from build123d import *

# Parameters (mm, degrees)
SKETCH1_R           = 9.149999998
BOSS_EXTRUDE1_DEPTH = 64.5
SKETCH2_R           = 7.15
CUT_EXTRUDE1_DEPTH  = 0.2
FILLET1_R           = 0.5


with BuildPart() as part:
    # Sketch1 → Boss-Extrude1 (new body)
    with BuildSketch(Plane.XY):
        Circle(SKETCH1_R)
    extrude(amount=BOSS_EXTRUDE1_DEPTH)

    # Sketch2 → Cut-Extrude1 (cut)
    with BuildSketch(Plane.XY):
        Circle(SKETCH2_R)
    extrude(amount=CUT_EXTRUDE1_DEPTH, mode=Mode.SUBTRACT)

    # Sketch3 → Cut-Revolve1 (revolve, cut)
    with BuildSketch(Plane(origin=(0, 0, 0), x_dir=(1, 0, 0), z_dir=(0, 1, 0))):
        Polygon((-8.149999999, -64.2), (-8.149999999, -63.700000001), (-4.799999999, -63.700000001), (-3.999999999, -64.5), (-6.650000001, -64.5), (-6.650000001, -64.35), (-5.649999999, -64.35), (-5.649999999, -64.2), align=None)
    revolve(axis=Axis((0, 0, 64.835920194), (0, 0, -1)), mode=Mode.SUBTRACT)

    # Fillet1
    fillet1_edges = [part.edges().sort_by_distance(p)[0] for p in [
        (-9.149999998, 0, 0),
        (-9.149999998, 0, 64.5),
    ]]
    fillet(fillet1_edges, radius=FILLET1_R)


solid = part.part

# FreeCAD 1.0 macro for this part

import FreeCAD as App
import Part
import Sketcher
from FreeCAD import Vector
Q = App.Units.Quantity


def edges_at(feature, points):
    """Names of the edges that pass closest to the given points."""
    edges = feature.Shape.Edges
    near = lambda p: min(range(len(edges)), key=lambda i: edges[i].distToShape(Part.Vertex(*p))[0])
    return sorted({f"Edge{near(p) + 1}" for p in points})

doc = App.newDocument("Part")
params = doc.addObject("Spreadsheet::Sheet", "Params")
for row, (alias, value) in enumerate([
    ("sketch1_diameter", "18.3 mm"),
    ("pad1_length", "64.5 mm"),
    ("sketch2_diameter", "14.3 mm"),
    ("pocket1_length", "0.2 mm"),
    ("sketch3_width", "1 mm"),
    ("sketch3_width2", "2.5 mm"),
    ("sketch3_height", "0.5 mm"),
    ("sketch3_width3", "2.65 mm"),
    ("sketch3_width4", "3.35 mm"),
    ("groove_angle", "360 deg"),
    ("fillet_radius", "0.5 mm"),
], start=1):
    params.set(f"A{row}", alias)
    params.set(f"B{row}", "=" + value)
    params.setAlias(f"B{row}", alias)

body = doc.addObject("PartDesign::Body", "Body")

# Sketch on XY plane
sketch1 = body.newObject("Sketcher::SketchObject", "Sketch")
sketch1.AttachmentSupport = (doc.getObject("XY_Plane"), [""])
sketch1.MapMode = "FlatFace"
sketch1.addGeometry(Part.Circle(Vector(0, 0, 0), Vector(0, 0, 1), 9), False)
sketch1.addConstraint([
    Sketcher.Constraint("Coincident", 0, 3, -1, 1),
    Sketcher.Constraint("Diameter", 0, Q("18.3 mm")),
])
sketch1.setExpression("Constraints[1]", "Params.sketch1_diameter")
pad1 = body.newObject("PartDesign::Pad", "Pad")
pad1.Profile = sketch1
pad1.setExpression("Length", "Params.pad1_length")

# Sketch on XY plane
sketch2 = body.newObject("Sketcher::SketchObject", "Sketch001")
sketch2.AttachmentSupport = (doc.getObject("XY_Plane"), [""])
sketch2.MapMode = "FlatFace"
sketch2.addGeometry(Part.Circle(Vector(0, 0, 0), Vector(0, 0, 1), 7), False)
sketch2.addConstraint([
    Sketcher.Constraint("Coincident", 0, 3, -1, 1),
    Sketcher.Constraint("Diameter", 0, Q("14.3 mm")),
])
sketch2.setExpression("Constraints[1]", "Params.sketch2_diameter")
pocket1 = body.newObject("PartDesign::Pocket", "Pocket")
pocket1.Profile = sketch2
pocket1.setExpression("Length", "Params.pocket1_length")
pocket1.Reversed = True

# Sketch on XZ plane
sketch3 = body.newObject("Sketcher::SketchObject", "Sketch002")
sketch3.AttachmentSupport = (doc.getObject("XZ_Plane"), [""])
sketch3.MapMode = "FlatFace"
sketch3.addGeometry([
    Part.LineSegment(Vector(-8.15, 63.7, 0), Vector(-8.15, 64.2, 0)),  # 0
    Part.LineSegment(Vector(-8.15, 64.2, 0), Vector(-5.65, 64.2, 0)),  # 1
    Part.LineSegment(Vector(-5.65, 64.2, 0), Vector(-5.65, 64.35, 0)),  # 2
    Part.LineSegment(Vector(-5.65, 64.35, 0), Vector(-6.65, 64.35, 0)),  # 3
    Part.LineSegment(Vector(-6.65, 64.35, 0), Vector(-6.65, 64.5, 0)),  # 4
    Part.LineSegment(Vector(-6.65, 64.5, 0), Vector(-4, 64.5, 0)),  # 5
    Part.LineSegment(Vector(-4, 64.5, 0), Vector(-4.8, 63.7, 0)),  # 6
    Part.LineSegment(Vector(-4.8, 63.7, 0), Vector(-8.15, 63.7, 0)),  # 7
], False)
sketch3.addConstraint([
    Sketcher.Constraint("Coincident", 0, 2, 1, 1),
    Sketcher.Constraint("Coincident", 1, 2, 2, 1),
    Sketcher.Constraint("Coincident", 2, 2, 3, 1),
    Sketcher.Constraint("Coincident", 3, 2, 4, 1),
    Sketcher.Constraint("Coincident", 4, 2, 5, 1),
    Sketcher.Constraint("Coincident", 5, 2, 6, 1),
    Sketcher.Constraint("Coincident", 6, 2, 7, 1),
    Sketcher.Constraint("Coincident", 7, 2, 0, 1),
    Sketcher.Constraint("Vertical", 0),
    Sketcher.Constraint("Horizontal", 1),
    Sketcher.Constraint("Vertical", 2),
    Sketcher.Constraint("Horizontal", 3),
    Sketcher.Constraint("Vertical", 4),
    Sketcher.Constraint("Horizontal", 5),
    Sketcher.Constraint("Horizontal", 7),
    Sketcher.Constraint("Equal", 2, 4),
    Sketcher.Constraint("DistanceX", 3, 2, 3, 1, Q("1 mm")),
    Sketcher.Constraint("Angle", 6, Q("-135 deg")),
    Sketcher.Constraint("DistanceX", 1, 1, 1, 2, Q("2.5 mm")),
    Sketcher.Constraint("DistanceY", 0, 1, 0, 2, Q("0.5 mm")),
    Sketcher.Constraint("DistanceX", 5, 2, -1, 1, Q("4 mm")),
    Sketcher.Constraint("DistanceX", 5, 1, 5, 2, Q("2.65 mm")),
    Sketcher.Constraint("DistanceX", 7, 2, 7, 1, Q("3.35 mm")),
    Sketcher.Constraint("DistanceY", -1, 1, 0, 2, Q("64.2 mm")),
])
sketch3.setExpression("Constraints[16]", "Params.sketch3_width")
sketch3.setExpression("Constraints[18]", "Params.sketch3_width2")
sketch3.setExpression("Constraints[19]", "Params.sketch3_height")
sketch3.setExpression("Constraints[21]", "Params.sketch3_width3")
sketch3.setExpression("Constraints[22]", "Params.sketch3_width4")
groove = body.newObject("PartDesign::Groove", "Groove")
groove.Profile = sketch3
groove.ReferenceAxis = (sketch3, ["V_Axis"])
groove.setExpression("Angle", "Params.groove_angle")
doc.recompute()

fillet = body.newObject("PartDesign::Fillet", "Fillet")
fillet.Base = (groove, edges_at(groove, [(-9.15, 0, 0), (-9.15, 0, 64.5)]))
fillet.setExpression("Radius", "Params.fillet_radius")

doc.recompute()
